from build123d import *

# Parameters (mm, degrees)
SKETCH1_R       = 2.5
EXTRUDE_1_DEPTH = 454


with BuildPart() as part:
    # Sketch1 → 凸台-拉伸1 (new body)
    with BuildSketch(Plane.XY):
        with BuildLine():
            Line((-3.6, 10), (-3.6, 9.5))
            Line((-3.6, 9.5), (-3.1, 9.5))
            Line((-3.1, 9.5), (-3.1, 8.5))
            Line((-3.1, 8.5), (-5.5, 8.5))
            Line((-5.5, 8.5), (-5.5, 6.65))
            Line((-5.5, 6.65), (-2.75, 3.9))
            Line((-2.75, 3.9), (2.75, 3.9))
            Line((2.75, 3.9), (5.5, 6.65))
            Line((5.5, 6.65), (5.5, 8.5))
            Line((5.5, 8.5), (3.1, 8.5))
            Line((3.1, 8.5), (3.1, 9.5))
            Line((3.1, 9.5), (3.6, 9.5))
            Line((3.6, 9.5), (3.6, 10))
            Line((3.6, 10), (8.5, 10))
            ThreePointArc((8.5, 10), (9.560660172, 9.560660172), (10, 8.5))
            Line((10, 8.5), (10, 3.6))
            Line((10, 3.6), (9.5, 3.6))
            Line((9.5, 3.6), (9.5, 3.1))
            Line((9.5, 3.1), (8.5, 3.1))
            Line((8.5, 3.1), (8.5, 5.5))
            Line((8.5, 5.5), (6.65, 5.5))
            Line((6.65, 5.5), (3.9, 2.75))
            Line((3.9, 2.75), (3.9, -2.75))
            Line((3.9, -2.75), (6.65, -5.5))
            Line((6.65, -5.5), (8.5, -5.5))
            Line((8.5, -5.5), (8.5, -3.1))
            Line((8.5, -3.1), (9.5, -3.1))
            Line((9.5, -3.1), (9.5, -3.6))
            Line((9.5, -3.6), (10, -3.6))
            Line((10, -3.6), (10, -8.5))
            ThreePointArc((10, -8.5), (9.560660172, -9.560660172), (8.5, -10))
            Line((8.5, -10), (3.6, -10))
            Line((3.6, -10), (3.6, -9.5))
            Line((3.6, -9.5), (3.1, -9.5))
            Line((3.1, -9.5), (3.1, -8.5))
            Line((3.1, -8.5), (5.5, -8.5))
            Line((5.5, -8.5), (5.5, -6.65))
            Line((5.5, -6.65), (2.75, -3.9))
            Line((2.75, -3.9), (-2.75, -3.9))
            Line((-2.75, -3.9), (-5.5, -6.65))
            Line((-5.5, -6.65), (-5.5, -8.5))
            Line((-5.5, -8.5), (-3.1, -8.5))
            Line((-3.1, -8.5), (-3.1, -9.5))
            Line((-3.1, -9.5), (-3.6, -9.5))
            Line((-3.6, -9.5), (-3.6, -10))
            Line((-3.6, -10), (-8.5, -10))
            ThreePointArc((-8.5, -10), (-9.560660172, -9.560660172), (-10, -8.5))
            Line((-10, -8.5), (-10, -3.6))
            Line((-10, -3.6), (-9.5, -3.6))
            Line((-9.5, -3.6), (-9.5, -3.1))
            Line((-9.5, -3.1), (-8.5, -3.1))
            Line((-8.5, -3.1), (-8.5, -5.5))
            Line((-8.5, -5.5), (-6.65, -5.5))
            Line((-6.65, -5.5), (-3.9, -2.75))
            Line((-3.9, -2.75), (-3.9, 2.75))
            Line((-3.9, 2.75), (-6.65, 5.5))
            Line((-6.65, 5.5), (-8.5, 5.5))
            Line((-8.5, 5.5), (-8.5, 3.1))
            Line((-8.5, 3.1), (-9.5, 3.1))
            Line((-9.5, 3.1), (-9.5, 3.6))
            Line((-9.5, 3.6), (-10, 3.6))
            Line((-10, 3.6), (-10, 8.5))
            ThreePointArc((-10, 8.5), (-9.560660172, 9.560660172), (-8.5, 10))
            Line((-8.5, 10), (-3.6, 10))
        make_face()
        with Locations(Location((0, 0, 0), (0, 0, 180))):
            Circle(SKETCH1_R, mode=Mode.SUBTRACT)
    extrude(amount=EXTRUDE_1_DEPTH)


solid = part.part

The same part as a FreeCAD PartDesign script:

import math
import FreeCAD as App
import Part
import Sketcher

doc = App.newDocument("Part")
body = doc.addObject("PartDesign::Body", "Body")

sketch1 = body.newObject("Sketcher::SketchObject", "Sketch")
sketch1.AttachmentSupport = (doc.getObject("XY_Plane"), [""])
sketch1.MapMode = "FlatFace"
sketch1.addGeometry(Part.LineSegment(App.Vector(-3.6, 9.5, 0), App.Vector(-3.6, 10, 0)), False)
sketch1.addGeometry(Part.LineSegment(App.Vector(-3.6, 10, 0), App.Vector(-8.5, 10, 0)), False)
sketch1.addGeometry(Part.ArcOfCircle(Part.Circle(App.Vector(-8.5, 8.5, 0), App.Vector(0, 0, 1), 1.5), math.radians(90), math.radians(180)), False)
sketch1.addGeometry(Part.LineSegment(App.Vector(-10, 8.5, 0), App.Vector(-10, 3.6, 0)), False)
sketch1.addGeometry(Part.LineSegment(App.Vector(-10, 3.6, 0), App.Vector(-9.5, 3.6, 0)), False)
sketch1.addGeometry(Part.LineSegment(App.Vector(-9.5, 3.6, 0), App.Vector(-9.5, 3.1, 0)), False)
sketch1.addGeometry(Part.LineSegment(App.Vector(-9.5, 3.1, 0), App.Vector(-8.5, 3.1, 0)), False)
sketch1.addGeometry(Part.LineSegment(App.Vector(-8.5, 3.1, 0), App.Vector(-8.5, 5.5, 0)), False)
sketch1.addGeometry(Part.LineSegment(App.Vector(-8.5, 5.5, 0), App.Vector(-6.7, 5.5, 0)), False)
sketch1.addGeometry(Part.LineSegment(App.Vector(-6.7, 5.5, 0), App.Vector(-3.9, 2.8, 0)), False)
sketch1.addGeometry(Part.LineSegment(App.Vector(-3.9, 2.8, 0), App.Vector(-3.9, -2.8, 0)), False)
sketch1.addGeometry(Part.LineSegment(App.Vector(-3.9, -2.8, 0), App.Vector(-6.7, -5.5, 0)), False)
sketch1.addGeometry(Part.LineSegment(App.Vector(-6.7, -5.5, 0), App.Vector(-8.5, -5.5, 0)), False)
sketch1.addGeometry(Part.LineSegment(App.Vector(-8.5, -5.5, 0), App.Vector(-8.5, -3.1, 0)), False)
sketch1.addGeometry(Part.LineSegment(App.Vector(-8.5, -3.1, 0), App.Vector(-9.5, -3.1, 0)), False)
sketch1.addGeometry(Part.LineSegment(App.Vector(-9.5, -3.1, 0), App.Vector(-9.5, -3.6, 0)), False)
sketch1.addGeometry(Part.LineSegment(App.Vector(-9.5, -3.6, 0), App.Vector(-10, -3.6, 0)), False)
sketch1.addGeometry(Part.LineSegment(App.Vector(-10, -3.6, 0), App.Vector(-10, -8.5, 0)), False)
sketch1.addGeometry(Part.ArcOfCircle(Part.Circle(App.Vector(-8.5, -8.5, 0), App.Vector(0, 0, 1), 1.5), math.radians(180), math.radians(270)), False)
sketch1.addGeometry(Part.LineSegment(App.Vector(-8.5, -10, 0), App.Vector(-3.6, -10, 0)), False)
sketch1.addGeometry(Part.LineSegment(App.Vector(-3.6, -10, 0), App.Vector(-3.6, -9.5, 0)), False)
sketch1.addGeometry(Part.LineSegment(App.Vector(-3.6, -9.5, 0), App.Vector(-3.1, -9.5, 0)), False)
sketch1.addGeometry(Part.LineSegment(App.Vector(-3.1, -9.5, 0), App.Vector(-3.1, -8.5, 0)), False)
sketch1.addGeometry(Part.LineSegment(App.Vector(-3.1, -8.5, 0), App.Vector(-5.5, -8.5, 0)), False)
sketch1.addGeometry(Part.LineSegment(App.Vector(-5.5, -8.5, 0), App.Vector(-5.5, -6.7, 0)), False)
sketch1.addGeometry(Part.LineSegment(App.Vector(-5.5, -6.7, 0), App.Vector(-2.8, -3.9, 0)), False)
sketch1.addGeometry(Part.LineSegment(App.Vector(-2.8, -3.9, 0), App.Vector(2.8, -3.9, 0)), False)
sketch1.addGeometry(Part.LineSegment(App.Vector(2.8, -3.9, 0), App.Vector(5.5, -6.7, 0)), False)
sketch1.addGeometry(Part.LineSegment(App.Vector(5.5, -6.7, 0), App.Vector(5.5, -8.5, 0)), False)
sketch1.addGeometry(Part.LineSegment(App.Vector(5.5, -8.5, 0), App.Vector(3.1, -8.5, 0)), False)
sketch1.addGeometry(Part.LineSegment(App.Vector(3.1, -8.5, 0), App.Vector(3.1, -9.5, 0)), False)
sketch1.addGeometry(Part.LineSegment(App.Vector(3.1, -9.5, 0), App.Vector(3.6, -9.5, 0)), False)
sketch1.addGeometry(Part.LineSegment(App.Vector(3.6, -9.5, 0), App.Vector(3.6, -10, 0)), False)
sketch1.addGeometry(Part.LineSegment(App.Vector(3.6, -10, 0), App.Vector(8.5, -10, 0)), False)
sketch1.addGeometry(Part.ArcOfCircle(Part.Circle(App.Vector(8.5, -8.5, 0), App.Vector(0, 0, 1), 1.5), math.radians(-90), math.radians(0)), False)
sketch1.addGeometry(Part.LineSegment(App.Vector(10, -8.5, 0), App.Vector(10, -3.6, 0)), False)
sketch1.addGeometry(Part.LineSegment(App.Vector(10, -3.6, 0), App.Vector(9.5, -3.6, 0)), False)
sketch1.addGeometry(Part.LineSegment(App.Vector(9.5, -3.6, 0), App.Vector(9.5, -3.1, 0)), False)
sketch1.addGeometry(Part.LineSegment(App.Vector(9.5, -3.1, 0), App.Vector(8.5, -3.1, 0)), False)
sketch1.addGeometry(Part.LineSegment(App.Vector(8.5, -3.1, 0), App.Vector(8.5, -5.5, 0)), False)
sketch1.addGeometry(Part.LineSegment(App.Vector(8.5, -5.5, 0), App.Vector(6.7, -5.5, 0)), False)
sketch1.addGeometry(Part.LineSegment(App.Vector(6.7, -5.5, 0), App.Vector(3.9, -2.8, 0)), False)
sketch1.addGeometry(Part.LineSegment(App.Vector(3.9, -2.8, 0), App.Vector(3.9, 2.8, 0)), False)
sketch1.addGeometry(Part.LineSegment(App.Vector(3.9, 2.8, 0), App.Vector(6.7, 5.5, 0)), False)
sketch1.addGeometry(Part.LineSegment(App.Vector(6.7, 5.5, 0), App.Vector(8.5, 5.5, 0)), False)
sketch1.addGeometry(Part.LineSegment(App.Vector(8.5, 5.5, 0), App.Vector(8.5, 3.1, 0)), False)
sketch1.addGeometry(Part.LineSegment(App.Vector(8.5, 3.1, 0), App.Vector(9.5, 3.1, 0)), False)
sketch1.addGeometry(Part.LineSegment(App.Vector(9.5, 3.1, 0), App.Vector(9.5, 3.6, 0)), False)
sketch1.addGeometry(Part.LineSegment(App.Vector(9.5, 3.6, 0), App.Vector(10, 3.6, 0)), False)
sketch1.addGeometry(Part.LineSegment(App.Vector(10, 3.6, 0), App.Vector(10, 8.5, 0)), False)
sketch1.addGeometry(Part.ArcOfCircle(Part.Circle(App.Vector(8.5, 8.5, 0), App.Vector(0, 0, 1), 1.5), math.radians(0), math.radians(90)), False)
sketch1.addGeometry(Part.LineSegment(App.Vector(8.5, 10, 0), App.Vector(3.6, 10, 0)), False)
sketch1.addGeometry(Part.LineSegment(App.Vector(3.6, 10, 0), App.Vector(3.6, 9.5, 0)), False)
sketch1.addGeometry(Part.LineSegment(App.Vector(3.6, 9.5, 0), App.Vector(3.1, 9.5, 0)), False)
sketch1.addGeometry(Part.LineSegment(App.Vector(3.1, 9.5, 0), App.Vector(3.1, 8.5, 0)), False)
sketch1.addGeometry(Part.LineSegment(App.Vector(3.1, 8.5, 0), App.Vector(5.5, 8.5, 0)), False)
sketch1.addGeometry(Part.LineSegment(App.Vector(5.5, 8.5, 0), App.Vector(5.5, 6.7, 0)), False)
sketch1.addGeometry(Part.LineSegment(App.Vector(5.5, 6.7, 0), App.Vector(2.8, 3.9, 0)), False)
sketch1.addGeometry(Part.LineSegment(App.Vector(2.8, 3.9, 0), App.Vector(-2.8, 3.9, 0)), False)
sketch1.addGeometry(Part.LineSegment(App.Vector(-2.8, 3.9, 0), App.Vector(-5.5, 6.7, 0)), False)
sketch1.addGeometry(Part.LineSegment(App.Vector(-5.5, 6.7, 0), App.Vector(-5.5, 8.5, 0)), False)
sketch1.addGeometry(Part.LineSegment(App.Vector(-5.5, 8.5, 0), App.Vector(-3.1, 8.5, 0)), False)
sketch1.addGeometry(Part.LineSegment(App.Vector(-3.1, 8.5, 0), App.Vector(-3.1, 9.5, 0)), False)
sketch1.addGeometry(Part.LineSegment(App.Vector(-3.1, 9.5, 0), App.Vector(-3.6, 9.5, 0)), False)
sketch1.addGeometry(Part.Circle(App.Vector(0, 0, 0), App.Vector(0, 0, 1), 2.5), False)
sketch1.addConstraint(Sketcher.Constraint("Coincident", 0, 2, 1, 1))
sketch1.addConstraint(Sketcher.Constraint("Tangent", 1, 2, 2, 1))
sketch1.addConstraint(Sketcher.Constraint("Tangent", 2, 2, 3, 1))
sketch1.addConstraint(Sketcher.Constraint("Coincident", 3, 2, 4, 1))
sketch1.addConstraint(Sketcher.Constraint("Coincident", 4, 2, 5, 1))
sketch1.addConstraint(Sketcher.Constraint("Coincident", 5, 2, 6, 1))
sketch1.addConstraint(Sketcher.Constraint("Coincident", 6, 2, 7, 1))
sketch1.addConstraint(Sketcher.Constraint("Coincident", 7, 2, 8, 1))
sketch1.addConstraint(Sketcher.Constraint("Coincident", 8, 2, 9, 1))
sketch1.addConstraint(Sketcher.Constraint("Coincident", 9, 2, 10, 1))
sketch1.addConstraint(Sketcher.Constraint("Coincident", 10, 2, 11, 1))
sketch1.addConstraint(Sketcher.Constraint("Coincident", 11, 2, 12, 1))
sketch1.addConstraint(Sketcher.Constraint("Coincident", 12, 2, 13, 1))
sketch1.addConstraint(Sketcher.Constraint("Coincident", 13, 2, 14, 1))
sketch1.addConstraint(Sketcher.Constraint("Coincident", 14, 2, 15, 1))
sketch1.addConstraint(Sketcher.Constraint("Coincident", 15, 2, 16, 1))
sketch1.addConstraint(Sketcher.Constraint("Coincident", 16, 2, 17, 1))
sketch1.addConstraint(Sketcher.Constraint("Tangent", 17, 2, 18, 1))
sketch1.addConstraint(Sketcher.Constraint("Tangent", 18, 2, 19, 1))
sketch1.addConstraint(Sketcher.Constraint("Coincident", 19, 2, 20, 1))
sketch1.addConstraint(Sketcher.Constraint("Coincident", 20, 2, 21, 1))
sketch1.addConstraint(Sketcher.Constraint("Coincident", 21, 2, 22, 1))
sketch1.addConstraint(Sketcher.Constraint("Coincident", 22, 2, 23, 1))
sketch1.addConstraint(Sketcher.Constraint("Coincident", 23, 2, 24, 1))
sketch1.addConstraint(Sketcher.Constraint("Coincident", 24, 2, 25, 1))
sketch1.addConstraint(Sketcher.Constraint("Coincident", 25, 2, 26, 1))
sketch1.addConstraint(Sketcher.Constraint("Coincident", 26, 2, 27, 1))
sketch1.addConstraint(Sketcher.Constraint("Coincident", 27, 2, 28, 1))
sketch1.addConstraint(Sketcher.Constraint("Coincident", 28, 2, 29, 1))
sketch1.addConstraint(Sketcher.Constraint("Coincident", 29, 2, 30, 1))
sketch1.addConstraint(Sketcher.Constraint("Coincident", 30, 2, 31, 1))
sketch1.addConstraint(Sketcher.Constraint("Coincident", 31, 2, 32, 1))
sketch1.addConstraint(Sketcher.Constraint("Coincident", 32, 2, 33, 1))
sketch1.addConstraint(Sketcher.Constraint("Tangent", 33, 2, 34, 1))
sketch1.addConstraint(Sketcher.Constraint("Tangent", 34, 2, 35, 1))
sketch1.addConstraint(Sketcher.Constraint("Coincident", 35, 2, 36, 1))
sketch1.addConstraint(Sketcher.Constraint("Coincident", 36, 2, 37, 1))
sketch1.addConstraint(Sketcher.Constraint("Coincident", 37, 2, 38, 1))
sketch1.addConstraint(Sketcher.Constraint("Coincident", 38, 2, 39, 1))
sketch1.addConstraint(Sketcher.Constraint("Coincident", 39, 2, 40, 1))
sketch1.addConstraint(Sketcher.Constraint("Coincident", 40, 2, 41, 1))
sketch1.addConstraint(Sketcher.Constraint("Coincident", 41, 2, 42, 1))
sketch1.addConstraint(Sketcher.Constraint("Coincident", 42, 2, 43, 1))
sketch1.addConstraint(Sketcher.Constraint("Coincident", 43, 2, 44, 1))
sketch1.addConstraint(Sketcher.Constraint("Coincident", 44, 2, 45, 1))
sketch1.addConstraint(Sketcher.Constraint("Coincident", 45, 2, 46, 1))
sketch1.addConstraint(Sketcher.Constraint("Coincident", 46, 2, 47, 1))
sketch1.addConstraint(Sketcher.Constraint("Coincident", 47, 2, 48, 1))
sketch1.addConstraint(Sketcher.Constraint("Coincident", 48, 2, 49, 1))
sketch1.addConstraint(Sketcher.Constraint("Tangent", 49, 2, 50, 1))
sketch1.addConstraint(Sketcher.Constraint("Tangent", 50, 2, 51, 1))
sketch1.addConstraint(Sketcher.Constraint("Coincident", 51, 2, 52, 1))
sketch1.addConstraint(Sketcher.Constraint("Coincident", 52, 2, 53, 1))
sketch1.addConstraint(Sketcher.Constraint("Coincident", 53, 2, 54, 1))
sketch1.addConstraint(Sketcher.Constraint("Coincident", 54, 2, 55, 1))
sketch1.addConstraint(Sketcher.Constraint("Coincident", 55, 2, 56, 1))
sketch1.addConstraint(Sketcher.Constraint("Coincident", 56, 2, 57, 1))
sketch1.addConstraint(Sketcher.Constraint("Coincident", 57, 2, 58, 1))
sketch1.addConstraint(Sketcher.Constraint("Coincident", 58, 2, 59, 1))
sketch1.addConstraint(Sketcher.Constraint("Coincident", 59, 2, 60, 1))
sketch1.addConstraint(Sketcher.Constraint("Coincident", 60, 2, 61, 1))
sketch1.addConstraint(Sketcher.Constraint("Coincident", 61, 2, 62, 1))
sketch1.addConstraint(Sketcher.Constraint("Coincident", 62, 2, 63, 1))
sketch1.addConstraint(Sketcher.Constraint("Coincident", 63, 2, 0, 1))
sketch1.addConstraint(Sketcher.Constraint("Vertical", 0))
sketch1.addConstraint(Sketcher.Constraint("Horizontal", 1))
sketch1.addConstraint(Sketcher.Constraint("Vertical", 3))
sketch1.addConstraint(Sketcher.Constraint("Horizontal", 4))
sketch1.addConstraint(Sketcher.Constraint("Vertical", 5))
sketch1.addConstraint(Sketcher.Constraint("Horizontal", 6))
sketch1.addConstraint(Sketcher.Constraint("Vertical", 7))
sketch1.addConstraint(Sketcher.Constraint("Horizontal", 8))
sketch1.addConstraint(Sketcher.Constraint("Vertical", 10))
sketch1.addConstraint(Sketcher.Constraint("Horizontal", 12))
sketch1.addConstraint(Sketcher.Constraint("Vertical", 13))
sketch1.addConstraint(Sketcher.Constraint("Horizontal", 14))
sketch1.addConstraint(Sketcher.Constraint("Vertical", 15))
sketch1.addConstraint(Sketcher.Constraint("Horizontal", 16))
sketch1.addConstraint(Sketcher.Constraint("Vertical", 17))
sketch1.addConstraint(Sketcher.Constraint("Horizontal", 19))
sketch1.addConstraint(Sketcher.Constraint("Vertical", 20))
sketch1.addConstraint(Sketcher.Constraint("Horizontal", 21))
sketch1.addConstraint(Sketcher.Constraint("Vertical", 22))
sketch1.addConstraint(Sketcher.Constraint("Horizontal", 23))
sketch1.addConstraint(Sketcher.Constraint("Vertical", 24))
sketch1.addConstraint(Sketcher.Constraint("Horizontal", 26))
sketch1.addConstraint(Sketcher.Constraint("Vertical", 28))
sketch1.addConstraint(Sketcher.Constraint("Horizontal", 29))
sketch1.addConstraint(Sketcher.Constraint("Vertical", 30))
sketch1.addConstraint(Sketcher.Constraint("Horizontal", 31))
sketch1.addConstraint(Sketcher.Constraint("Vertical", 32))
sketch1.addConstraint(Sketcher.Constraint("Horizontal", 33))
sketch1.addConstraint(Sketcher.Constraint("Vertical", 35))
sketch1.addConstraint(Sketcher.Constraint("Horizontal", 36))
sketch1.addConstraint(Sketcher.Constraint("Vertical", 37))
sketch1.addConstraint(Sketcher.Constraint("Horizontal", 38))
sketch1.addConstraint(Sketcher.Constraint("Vertical", 39))
sketch1.addConstraint(Sketcher.Constraint("Horizontal", 40))
sketch1.addConstraint(Sketcher.Constraint("Vertical", 42))
sketch1.addConstraint(Sketcher.Constraint("Horizontal", 44))
sketch1.addConstraint(Sketcher.Constraint("Vertical", 45))
sketch1.addConstraint(Sketcher.Constraint("Horizontal", 46))
sketch1.addConstraint(Sketcher.Constraint("Vertical", 47))
sketch1.addConstraint(Sketcher.Constraint("Horizontal", 48))
sketch1.addConstraint(Sketcher.Constraint("Vertical", 49))
sketch1.addConstraint(Sketcher.Constraint("Horizontal", 51))
sketch1.addConstraint(Sketcher.Constraint("Vertical", 52))
sketch1.addConstraint(Sketcher.Constraint("Horizontal", 53))
sketch1.addConstraint(Sketcher.Constraint("Vertical", 54))
sketch1.addConstraint(Sketcher.Constraint("Horizontal", 55))
sketch1.addConstraint(Sketcher.Constraint("Vertical", 56))
sketch1.addConstraint(Sketcher.Constraint("Horizontal", 58))
sketch1.addConstraint(Sketcher.Constraint("Vertical", 60))
sketch1.addConstraint(Sketcher.Constraint("Horizontal", 61))
sketch1.addConstraint(Sketcher.Constraint("Vertical", 62))
sketch1.addConstraint(Sketcher.Constraint("Horizontal", 63))
sketch1.addConstraint(Sketcher.Constraint("Coincident", 64, 3, -1, 1))
sketch1.addConstraint(Sketcher.Constraint("Equal", 2, 18))
sketch1.addConstraint(Sketcher.Constraint("Equal", 18, 34))
sketch1.addConstraint(Sketcher.Constraint("Equal", 34, 50))
sketch1.addConstraint(Sketcher.Constraint("Symmetric", 2, 3, 34, 3, -1, 1))
sketch1.addConstraint(Sketcher.Constraint("Symmetric", 18, 3, 50, 3, -1, 1))
sketch1.addConstraint(Sketcher.Constraint("Symmetric", 4, 2, 36, 2, -1, 1))
sketch1.addConstraint(Sketcher.Constraint("Symmetric", 6, 2, 38, 2, -1, 1))
sketch1.addConstraint(Sketcher.Constraint("Symmetric", 8, 2, 40, 2, -1, 1))
sketch1.addConstraint(Sketcher.Constraint("Symmetric", 9, 2, 41, 2, -1, 1))
sketch1.addConstraint(Sketcher.Constraint("Symmetric", 11, 2, 43, 2, -1, 1))
sketch1.addConstraint(Sketcher.Constraint("Symmetric", 13, 2, 45, 2, -1, 1))
sketch1.addConstraint(Sketcher.Constraint("Symmetric", 15, 2, 47, 2, -1, 1))
sketch1.addConstraint(Sketcher.Constraint("Symmetric", 20, 2, 52, 2, -1, 1))
sketch1.addConstraint(Sketcher.Constraint("Symmetric", 22, 2, 54, 2, -1, 1))
sketch1.addConstraint(Sketcher.Constraint("Symmetric", 24, 2, 56, 2, -1, 1))
sketch1.addConstraint(Sketcher.Constraint("Symmetric", 25, 2, 57, 2, -1, 1))
sketch1.addConstraint(Sketcher.Constraint("Symmetric", 27, 2, 59, 2, -1, 1))
sketch1.addConstraint(Sketcher.Constraint("Symmetric", 29, 2, 61, 2, -1, 1))
sketch1.addConstraint(Sketcher.Constraint("Symmetric", 31, 2, 63, 2, -1, 1))
sketch1.addConstraint(Sketcher.Constraint("Symmetric", 18, 3, 34, 3, -2))
sketch1.addConstraint(Sketcher.Constraint("Symmetric", 24, 2, 27, 2, -2))
sketch1.addConstraint(Sketcher.Constraint("Symmetric", 22, 2, 29, 2, -2))
sketch1.addConstraint(Sketcher.Constraint("Symmetric", 20, 2, 31, 2, -2))
sketch1.addConstraint(Sketcher.Constraint("Symmetric", 15, 2, 36, 2, -2))
sketch1.addConstraint(Sketcher.Constraint("Symmetric", 13, 2, 38, 2, -2))
sketch1.addConstraint(Sketcher.Constraint("Symmetric", 11, 2, 40, 2, -2))
sketch1.addConstraint(Sketcher.Constraint("Perpendicular", 9, 11))
sketch1.addConstraint(Sketcher.Constraint("Parallel", 11, 25))
sketch1.addConstraint(Sketcher.Constraint("Perpendicular", 25, 27))
sketch1.addConstraint(Sketcher.Constraint("Perpendicular", 41, 43))
sketch1.addConstraint(Sketcher.Constraint("Perpendicular", 57, 59))
sketch1.addConstraint(Sketcher.Constraint("Horizontal", 17, 2, 22, 2))
sketch1.addConstraint(Sketcher.Constraint("Horizontal", 10, 2, 41, 2))
sketch1.addConstraint(Sketcher.Constraint("Vertical", 1, 2, 6, 2))
sketch1.addConstraint(Sketcher.Constraint("Equal", 16, 21))
sketch1.addConstraint(Sketcher.Constraint("Equal", 63, 0))
sketch1.addConstraint(Sketcher.Constraint("Equal", 51, 3))
sketch1.addConstraint(Sketcher.Constraint("Equal", 0, 5))
sketch1.addConstraint(Sketcher.Constraint("Equal", 61, 7))
sketch1.addConstraint(Sketcher.Constraint("Equal", 58, 10))
sketch1.addConstraint(Sketcher.Constraint("Equal", 44, 24))
sketch1.addConstraint(Sketcher.Constraint("Equal", 11, 25))
sketch1.addConstraint(Sketcher.Constraint("Diameter", 64, 5.0))
sketch1.addConstraint(Sketcher.Constraint("Radius", 2, 1.5))
sketch1.addConstraint(Sketcher.Constraint("DistanceX", 6, 1, 6, 2, 1.0))
sketch1.addConstraint(Sketcher.Constraint("DistanceX", 1, 2, 1, 1, 4.9))
sketch1.addConstraint(Sketcher.Constraint("DistanceX", 23, 2, 23, 1, 2.4))
sketch1.addConstraint(Sketcher.Constraint("DistanceX", 26, 1, 26, 2, 5.5))
sketch1.addConstraint(Sketcher.Constraint("DistanceY", -1, 1, 0, 2, 10.0))
sketch1.addConstraint(Sketcher.Constraint("DistanceX", 8, 1, 8, 2, 1.85))
pad1 = body.newObject("PartDesign::Pad", "Pad")
pad1.Profile = sketch1
pad1.Length = 454

doc.recompute()
